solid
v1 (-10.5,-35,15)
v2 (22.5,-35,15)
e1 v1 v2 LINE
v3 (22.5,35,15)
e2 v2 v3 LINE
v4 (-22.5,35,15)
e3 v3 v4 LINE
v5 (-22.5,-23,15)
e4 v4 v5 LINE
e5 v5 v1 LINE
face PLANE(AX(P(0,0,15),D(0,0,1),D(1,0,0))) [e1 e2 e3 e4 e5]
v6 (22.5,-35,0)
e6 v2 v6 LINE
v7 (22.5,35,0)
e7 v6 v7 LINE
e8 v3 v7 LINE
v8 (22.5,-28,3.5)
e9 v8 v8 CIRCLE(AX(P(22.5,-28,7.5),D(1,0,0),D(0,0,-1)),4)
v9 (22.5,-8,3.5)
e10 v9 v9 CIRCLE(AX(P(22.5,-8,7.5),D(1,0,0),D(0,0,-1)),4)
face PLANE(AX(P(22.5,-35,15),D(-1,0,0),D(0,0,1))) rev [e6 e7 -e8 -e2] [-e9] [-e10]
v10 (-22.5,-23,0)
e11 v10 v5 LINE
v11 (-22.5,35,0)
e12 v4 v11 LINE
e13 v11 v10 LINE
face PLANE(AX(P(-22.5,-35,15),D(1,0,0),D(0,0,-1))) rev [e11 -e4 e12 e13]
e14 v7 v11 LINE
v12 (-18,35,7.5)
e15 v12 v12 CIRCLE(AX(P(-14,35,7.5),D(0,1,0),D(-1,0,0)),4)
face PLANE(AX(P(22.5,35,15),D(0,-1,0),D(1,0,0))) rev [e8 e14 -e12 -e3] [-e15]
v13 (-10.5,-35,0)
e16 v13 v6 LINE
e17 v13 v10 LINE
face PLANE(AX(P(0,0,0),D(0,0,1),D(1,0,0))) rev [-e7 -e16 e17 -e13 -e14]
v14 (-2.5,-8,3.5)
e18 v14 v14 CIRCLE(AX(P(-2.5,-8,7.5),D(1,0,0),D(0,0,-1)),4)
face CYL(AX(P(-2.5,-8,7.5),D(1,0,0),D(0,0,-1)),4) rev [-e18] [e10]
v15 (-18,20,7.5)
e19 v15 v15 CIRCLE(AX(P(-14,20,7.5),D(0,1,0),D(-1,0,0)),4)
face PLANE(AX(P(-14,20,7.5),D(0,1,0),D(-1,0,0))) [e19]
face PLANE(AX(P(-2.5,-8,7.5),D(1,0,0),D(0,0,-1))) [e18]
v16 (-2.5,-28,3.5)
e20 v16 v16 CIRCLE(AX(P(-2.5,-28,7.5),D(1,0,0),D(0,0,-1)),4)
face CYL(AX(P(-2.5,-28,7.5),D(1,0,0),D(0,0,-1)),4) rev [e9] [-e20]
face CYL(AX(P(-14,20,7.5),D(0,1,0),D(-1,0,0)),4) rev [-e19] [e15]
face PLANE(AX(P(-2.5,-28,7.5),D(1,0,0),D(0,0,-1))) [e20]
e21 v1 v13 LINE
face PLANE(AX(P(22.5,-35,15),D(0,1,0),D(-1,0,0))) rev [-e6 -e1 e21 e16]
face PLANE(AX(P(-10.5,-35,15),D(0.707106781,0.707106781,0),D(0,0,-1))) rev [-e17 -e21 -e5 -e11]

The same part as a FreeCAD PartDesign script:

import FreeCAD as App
import Part
import Sketcher
from FreeCAD import Vector
Q = App.Units.Quantity


def edges_at(feature, points):
    """Names of the edges that pass closest to the given points."""
    edges = feature.Shape.Edges
    near = lambda p: min(range(len(edges)), key=lambda i: edges[i].distToShape(Part.Vertex(*p))[0])
    return sorted({f"Edge{near(p) + 1}" for p in points})

doc = App.newDocument("Part")
body = doc.addObject("PartDesign::Body", "Body")

# Sketch on XY plane
sketch1 = body.newObject("Sketcher::SketchObject", "Sketch")
sketch1.AttachmentSupport = (doc.getObject("XY_Plane"), [""])
sketch1.MapMode = "FlatFace"
sketch1.addGeometry([
    Part.LineSegment(Vector(-22, 35, 0), Vector(-22, -35, 0)),
    Part.LineSegment(Vector(-22, -35, 0), Vector(22, -35, 0)),
    Part.LineSegment(Vector(22, -35, 0), Vector(22, 35, 0)),
    Part.LineSegment(Vector(22, 35, 0), Vector(-22, 35, 0)),
], False)
sketch1.addConstraint([
    Sketcher.Constraint("Coincident", 0, 2, 1, 1),
    Sketcher.Constraint("Coincident", 1, 2, 2, 1),
    Sketcher.Constraint("Coincident", 2, 2, 3, 1),
    Sketcher.Constraint("Coincident", 3, 2, 0, 1),
    Sketcher.Constraint("Vertical", 0),
    Sketcher.Constraint("Horizontal", 1),
    Sketcher.Constraint("Vertical", 2),
    Sketcher.Constraint("Horizontal", 3),
    Sketcher.Constraint("Symmetric", 0, 2, 2, 2, -1, 1),
    Sketcher.Constraint("DistanceX", 1, 1, 1, 2, Q("45 mm")),
    Sketcher.Constraint("DistanceY", 0, 2, 0, 1, Q("70 mm")),
])
pad1 = body.newObject("PartDesign::Pad", "Pad")
pad1.Profile = sketch1
pad1.Length = 15

# Sketch on XZ plane
sketch2 = body.newObject("Sketcher::SketchObject", "Sketch001")
sketch2.AttachmentSupport = (doc.getObject("XZ_Plane"), [""])
sketch2.MapMode = "FlatFace"
sketch2.AttachmentOffset = App.Placement(Vector(0, 0, -35), App.Rotation())
sketch2.addGeometry(Part.Circle(Vector(-14, 7.5, 0), Vector(0, 0, 1), 4), False)
sketch2.addConstraint([
    Sketcher.Constraint("Diameter", 0, Q("8 mm")),
    Sketcher.Constraint("DistanceX", 0, 3, -1, 1, Q("14 mm")),
    Sketcher.Constraint("DistanceY", -1, 1, 0, 3, Q("7.5 mm")),
])
pocket1 = body.newObject("PartDesign::Pocket", "Pocket")
pocket1.Profile = sketch2
pocket1.Length = 15
pocket1.Reversed = True
doc.recompute()

chamfer = body.newObject("PartDesign::Chamfer", "Chamfer")
chamfer.Base = (pocket1, edges_at(pocket1, [(-22.5, -35, 7.5)]))
chamfer.Size = 12

# Sketch on YZ plane
sketch3 = body.newObject("Sketcher::SketchObject", "Sketch002")
sketch3.AttachmentSupport = (doc.getObject("YZ_Plane"), [""])
sketch3.MapMode = "FlatFace"
sketch3.AttachmentOffset = App.Placement(Vector(0, 0, 22.5), App.Rotation())
sketch3.addGeometry([
    Part.Circle(Vector(-28, 7.5, 0), Vector(0, 0, 1), 4),
    Part.Circle(Vector(-8, 7.5, 0), Vector(0, 0, 1), 4),
], False)
sketch3.addConstraint([
    Sketcher.Constraint("Equal", 0, 1),
    Sketcher.Constraint("Horizontal", 0, 3, 1, 3),
    Sketcher.Constraint("Diameter", 0, Q("8 mm")),
    Sketcher.Constraint("DistanceX", 0, 3, -1, 1, Q("28 mm")),
    Sketcher.Constraint("DistanceX", 1, 3, -1, 1, Q("8 mm")),
    Sketcher.Constraint("DistanceY", -1, 1, 0, 3, Q("7.5 mm")),
])
pocket2 = body.newObject("PartDesign::Pocket", "Pocket001")
pocket2.Profile = sketch3
pocket2.Length = 25

doc.recompute()
